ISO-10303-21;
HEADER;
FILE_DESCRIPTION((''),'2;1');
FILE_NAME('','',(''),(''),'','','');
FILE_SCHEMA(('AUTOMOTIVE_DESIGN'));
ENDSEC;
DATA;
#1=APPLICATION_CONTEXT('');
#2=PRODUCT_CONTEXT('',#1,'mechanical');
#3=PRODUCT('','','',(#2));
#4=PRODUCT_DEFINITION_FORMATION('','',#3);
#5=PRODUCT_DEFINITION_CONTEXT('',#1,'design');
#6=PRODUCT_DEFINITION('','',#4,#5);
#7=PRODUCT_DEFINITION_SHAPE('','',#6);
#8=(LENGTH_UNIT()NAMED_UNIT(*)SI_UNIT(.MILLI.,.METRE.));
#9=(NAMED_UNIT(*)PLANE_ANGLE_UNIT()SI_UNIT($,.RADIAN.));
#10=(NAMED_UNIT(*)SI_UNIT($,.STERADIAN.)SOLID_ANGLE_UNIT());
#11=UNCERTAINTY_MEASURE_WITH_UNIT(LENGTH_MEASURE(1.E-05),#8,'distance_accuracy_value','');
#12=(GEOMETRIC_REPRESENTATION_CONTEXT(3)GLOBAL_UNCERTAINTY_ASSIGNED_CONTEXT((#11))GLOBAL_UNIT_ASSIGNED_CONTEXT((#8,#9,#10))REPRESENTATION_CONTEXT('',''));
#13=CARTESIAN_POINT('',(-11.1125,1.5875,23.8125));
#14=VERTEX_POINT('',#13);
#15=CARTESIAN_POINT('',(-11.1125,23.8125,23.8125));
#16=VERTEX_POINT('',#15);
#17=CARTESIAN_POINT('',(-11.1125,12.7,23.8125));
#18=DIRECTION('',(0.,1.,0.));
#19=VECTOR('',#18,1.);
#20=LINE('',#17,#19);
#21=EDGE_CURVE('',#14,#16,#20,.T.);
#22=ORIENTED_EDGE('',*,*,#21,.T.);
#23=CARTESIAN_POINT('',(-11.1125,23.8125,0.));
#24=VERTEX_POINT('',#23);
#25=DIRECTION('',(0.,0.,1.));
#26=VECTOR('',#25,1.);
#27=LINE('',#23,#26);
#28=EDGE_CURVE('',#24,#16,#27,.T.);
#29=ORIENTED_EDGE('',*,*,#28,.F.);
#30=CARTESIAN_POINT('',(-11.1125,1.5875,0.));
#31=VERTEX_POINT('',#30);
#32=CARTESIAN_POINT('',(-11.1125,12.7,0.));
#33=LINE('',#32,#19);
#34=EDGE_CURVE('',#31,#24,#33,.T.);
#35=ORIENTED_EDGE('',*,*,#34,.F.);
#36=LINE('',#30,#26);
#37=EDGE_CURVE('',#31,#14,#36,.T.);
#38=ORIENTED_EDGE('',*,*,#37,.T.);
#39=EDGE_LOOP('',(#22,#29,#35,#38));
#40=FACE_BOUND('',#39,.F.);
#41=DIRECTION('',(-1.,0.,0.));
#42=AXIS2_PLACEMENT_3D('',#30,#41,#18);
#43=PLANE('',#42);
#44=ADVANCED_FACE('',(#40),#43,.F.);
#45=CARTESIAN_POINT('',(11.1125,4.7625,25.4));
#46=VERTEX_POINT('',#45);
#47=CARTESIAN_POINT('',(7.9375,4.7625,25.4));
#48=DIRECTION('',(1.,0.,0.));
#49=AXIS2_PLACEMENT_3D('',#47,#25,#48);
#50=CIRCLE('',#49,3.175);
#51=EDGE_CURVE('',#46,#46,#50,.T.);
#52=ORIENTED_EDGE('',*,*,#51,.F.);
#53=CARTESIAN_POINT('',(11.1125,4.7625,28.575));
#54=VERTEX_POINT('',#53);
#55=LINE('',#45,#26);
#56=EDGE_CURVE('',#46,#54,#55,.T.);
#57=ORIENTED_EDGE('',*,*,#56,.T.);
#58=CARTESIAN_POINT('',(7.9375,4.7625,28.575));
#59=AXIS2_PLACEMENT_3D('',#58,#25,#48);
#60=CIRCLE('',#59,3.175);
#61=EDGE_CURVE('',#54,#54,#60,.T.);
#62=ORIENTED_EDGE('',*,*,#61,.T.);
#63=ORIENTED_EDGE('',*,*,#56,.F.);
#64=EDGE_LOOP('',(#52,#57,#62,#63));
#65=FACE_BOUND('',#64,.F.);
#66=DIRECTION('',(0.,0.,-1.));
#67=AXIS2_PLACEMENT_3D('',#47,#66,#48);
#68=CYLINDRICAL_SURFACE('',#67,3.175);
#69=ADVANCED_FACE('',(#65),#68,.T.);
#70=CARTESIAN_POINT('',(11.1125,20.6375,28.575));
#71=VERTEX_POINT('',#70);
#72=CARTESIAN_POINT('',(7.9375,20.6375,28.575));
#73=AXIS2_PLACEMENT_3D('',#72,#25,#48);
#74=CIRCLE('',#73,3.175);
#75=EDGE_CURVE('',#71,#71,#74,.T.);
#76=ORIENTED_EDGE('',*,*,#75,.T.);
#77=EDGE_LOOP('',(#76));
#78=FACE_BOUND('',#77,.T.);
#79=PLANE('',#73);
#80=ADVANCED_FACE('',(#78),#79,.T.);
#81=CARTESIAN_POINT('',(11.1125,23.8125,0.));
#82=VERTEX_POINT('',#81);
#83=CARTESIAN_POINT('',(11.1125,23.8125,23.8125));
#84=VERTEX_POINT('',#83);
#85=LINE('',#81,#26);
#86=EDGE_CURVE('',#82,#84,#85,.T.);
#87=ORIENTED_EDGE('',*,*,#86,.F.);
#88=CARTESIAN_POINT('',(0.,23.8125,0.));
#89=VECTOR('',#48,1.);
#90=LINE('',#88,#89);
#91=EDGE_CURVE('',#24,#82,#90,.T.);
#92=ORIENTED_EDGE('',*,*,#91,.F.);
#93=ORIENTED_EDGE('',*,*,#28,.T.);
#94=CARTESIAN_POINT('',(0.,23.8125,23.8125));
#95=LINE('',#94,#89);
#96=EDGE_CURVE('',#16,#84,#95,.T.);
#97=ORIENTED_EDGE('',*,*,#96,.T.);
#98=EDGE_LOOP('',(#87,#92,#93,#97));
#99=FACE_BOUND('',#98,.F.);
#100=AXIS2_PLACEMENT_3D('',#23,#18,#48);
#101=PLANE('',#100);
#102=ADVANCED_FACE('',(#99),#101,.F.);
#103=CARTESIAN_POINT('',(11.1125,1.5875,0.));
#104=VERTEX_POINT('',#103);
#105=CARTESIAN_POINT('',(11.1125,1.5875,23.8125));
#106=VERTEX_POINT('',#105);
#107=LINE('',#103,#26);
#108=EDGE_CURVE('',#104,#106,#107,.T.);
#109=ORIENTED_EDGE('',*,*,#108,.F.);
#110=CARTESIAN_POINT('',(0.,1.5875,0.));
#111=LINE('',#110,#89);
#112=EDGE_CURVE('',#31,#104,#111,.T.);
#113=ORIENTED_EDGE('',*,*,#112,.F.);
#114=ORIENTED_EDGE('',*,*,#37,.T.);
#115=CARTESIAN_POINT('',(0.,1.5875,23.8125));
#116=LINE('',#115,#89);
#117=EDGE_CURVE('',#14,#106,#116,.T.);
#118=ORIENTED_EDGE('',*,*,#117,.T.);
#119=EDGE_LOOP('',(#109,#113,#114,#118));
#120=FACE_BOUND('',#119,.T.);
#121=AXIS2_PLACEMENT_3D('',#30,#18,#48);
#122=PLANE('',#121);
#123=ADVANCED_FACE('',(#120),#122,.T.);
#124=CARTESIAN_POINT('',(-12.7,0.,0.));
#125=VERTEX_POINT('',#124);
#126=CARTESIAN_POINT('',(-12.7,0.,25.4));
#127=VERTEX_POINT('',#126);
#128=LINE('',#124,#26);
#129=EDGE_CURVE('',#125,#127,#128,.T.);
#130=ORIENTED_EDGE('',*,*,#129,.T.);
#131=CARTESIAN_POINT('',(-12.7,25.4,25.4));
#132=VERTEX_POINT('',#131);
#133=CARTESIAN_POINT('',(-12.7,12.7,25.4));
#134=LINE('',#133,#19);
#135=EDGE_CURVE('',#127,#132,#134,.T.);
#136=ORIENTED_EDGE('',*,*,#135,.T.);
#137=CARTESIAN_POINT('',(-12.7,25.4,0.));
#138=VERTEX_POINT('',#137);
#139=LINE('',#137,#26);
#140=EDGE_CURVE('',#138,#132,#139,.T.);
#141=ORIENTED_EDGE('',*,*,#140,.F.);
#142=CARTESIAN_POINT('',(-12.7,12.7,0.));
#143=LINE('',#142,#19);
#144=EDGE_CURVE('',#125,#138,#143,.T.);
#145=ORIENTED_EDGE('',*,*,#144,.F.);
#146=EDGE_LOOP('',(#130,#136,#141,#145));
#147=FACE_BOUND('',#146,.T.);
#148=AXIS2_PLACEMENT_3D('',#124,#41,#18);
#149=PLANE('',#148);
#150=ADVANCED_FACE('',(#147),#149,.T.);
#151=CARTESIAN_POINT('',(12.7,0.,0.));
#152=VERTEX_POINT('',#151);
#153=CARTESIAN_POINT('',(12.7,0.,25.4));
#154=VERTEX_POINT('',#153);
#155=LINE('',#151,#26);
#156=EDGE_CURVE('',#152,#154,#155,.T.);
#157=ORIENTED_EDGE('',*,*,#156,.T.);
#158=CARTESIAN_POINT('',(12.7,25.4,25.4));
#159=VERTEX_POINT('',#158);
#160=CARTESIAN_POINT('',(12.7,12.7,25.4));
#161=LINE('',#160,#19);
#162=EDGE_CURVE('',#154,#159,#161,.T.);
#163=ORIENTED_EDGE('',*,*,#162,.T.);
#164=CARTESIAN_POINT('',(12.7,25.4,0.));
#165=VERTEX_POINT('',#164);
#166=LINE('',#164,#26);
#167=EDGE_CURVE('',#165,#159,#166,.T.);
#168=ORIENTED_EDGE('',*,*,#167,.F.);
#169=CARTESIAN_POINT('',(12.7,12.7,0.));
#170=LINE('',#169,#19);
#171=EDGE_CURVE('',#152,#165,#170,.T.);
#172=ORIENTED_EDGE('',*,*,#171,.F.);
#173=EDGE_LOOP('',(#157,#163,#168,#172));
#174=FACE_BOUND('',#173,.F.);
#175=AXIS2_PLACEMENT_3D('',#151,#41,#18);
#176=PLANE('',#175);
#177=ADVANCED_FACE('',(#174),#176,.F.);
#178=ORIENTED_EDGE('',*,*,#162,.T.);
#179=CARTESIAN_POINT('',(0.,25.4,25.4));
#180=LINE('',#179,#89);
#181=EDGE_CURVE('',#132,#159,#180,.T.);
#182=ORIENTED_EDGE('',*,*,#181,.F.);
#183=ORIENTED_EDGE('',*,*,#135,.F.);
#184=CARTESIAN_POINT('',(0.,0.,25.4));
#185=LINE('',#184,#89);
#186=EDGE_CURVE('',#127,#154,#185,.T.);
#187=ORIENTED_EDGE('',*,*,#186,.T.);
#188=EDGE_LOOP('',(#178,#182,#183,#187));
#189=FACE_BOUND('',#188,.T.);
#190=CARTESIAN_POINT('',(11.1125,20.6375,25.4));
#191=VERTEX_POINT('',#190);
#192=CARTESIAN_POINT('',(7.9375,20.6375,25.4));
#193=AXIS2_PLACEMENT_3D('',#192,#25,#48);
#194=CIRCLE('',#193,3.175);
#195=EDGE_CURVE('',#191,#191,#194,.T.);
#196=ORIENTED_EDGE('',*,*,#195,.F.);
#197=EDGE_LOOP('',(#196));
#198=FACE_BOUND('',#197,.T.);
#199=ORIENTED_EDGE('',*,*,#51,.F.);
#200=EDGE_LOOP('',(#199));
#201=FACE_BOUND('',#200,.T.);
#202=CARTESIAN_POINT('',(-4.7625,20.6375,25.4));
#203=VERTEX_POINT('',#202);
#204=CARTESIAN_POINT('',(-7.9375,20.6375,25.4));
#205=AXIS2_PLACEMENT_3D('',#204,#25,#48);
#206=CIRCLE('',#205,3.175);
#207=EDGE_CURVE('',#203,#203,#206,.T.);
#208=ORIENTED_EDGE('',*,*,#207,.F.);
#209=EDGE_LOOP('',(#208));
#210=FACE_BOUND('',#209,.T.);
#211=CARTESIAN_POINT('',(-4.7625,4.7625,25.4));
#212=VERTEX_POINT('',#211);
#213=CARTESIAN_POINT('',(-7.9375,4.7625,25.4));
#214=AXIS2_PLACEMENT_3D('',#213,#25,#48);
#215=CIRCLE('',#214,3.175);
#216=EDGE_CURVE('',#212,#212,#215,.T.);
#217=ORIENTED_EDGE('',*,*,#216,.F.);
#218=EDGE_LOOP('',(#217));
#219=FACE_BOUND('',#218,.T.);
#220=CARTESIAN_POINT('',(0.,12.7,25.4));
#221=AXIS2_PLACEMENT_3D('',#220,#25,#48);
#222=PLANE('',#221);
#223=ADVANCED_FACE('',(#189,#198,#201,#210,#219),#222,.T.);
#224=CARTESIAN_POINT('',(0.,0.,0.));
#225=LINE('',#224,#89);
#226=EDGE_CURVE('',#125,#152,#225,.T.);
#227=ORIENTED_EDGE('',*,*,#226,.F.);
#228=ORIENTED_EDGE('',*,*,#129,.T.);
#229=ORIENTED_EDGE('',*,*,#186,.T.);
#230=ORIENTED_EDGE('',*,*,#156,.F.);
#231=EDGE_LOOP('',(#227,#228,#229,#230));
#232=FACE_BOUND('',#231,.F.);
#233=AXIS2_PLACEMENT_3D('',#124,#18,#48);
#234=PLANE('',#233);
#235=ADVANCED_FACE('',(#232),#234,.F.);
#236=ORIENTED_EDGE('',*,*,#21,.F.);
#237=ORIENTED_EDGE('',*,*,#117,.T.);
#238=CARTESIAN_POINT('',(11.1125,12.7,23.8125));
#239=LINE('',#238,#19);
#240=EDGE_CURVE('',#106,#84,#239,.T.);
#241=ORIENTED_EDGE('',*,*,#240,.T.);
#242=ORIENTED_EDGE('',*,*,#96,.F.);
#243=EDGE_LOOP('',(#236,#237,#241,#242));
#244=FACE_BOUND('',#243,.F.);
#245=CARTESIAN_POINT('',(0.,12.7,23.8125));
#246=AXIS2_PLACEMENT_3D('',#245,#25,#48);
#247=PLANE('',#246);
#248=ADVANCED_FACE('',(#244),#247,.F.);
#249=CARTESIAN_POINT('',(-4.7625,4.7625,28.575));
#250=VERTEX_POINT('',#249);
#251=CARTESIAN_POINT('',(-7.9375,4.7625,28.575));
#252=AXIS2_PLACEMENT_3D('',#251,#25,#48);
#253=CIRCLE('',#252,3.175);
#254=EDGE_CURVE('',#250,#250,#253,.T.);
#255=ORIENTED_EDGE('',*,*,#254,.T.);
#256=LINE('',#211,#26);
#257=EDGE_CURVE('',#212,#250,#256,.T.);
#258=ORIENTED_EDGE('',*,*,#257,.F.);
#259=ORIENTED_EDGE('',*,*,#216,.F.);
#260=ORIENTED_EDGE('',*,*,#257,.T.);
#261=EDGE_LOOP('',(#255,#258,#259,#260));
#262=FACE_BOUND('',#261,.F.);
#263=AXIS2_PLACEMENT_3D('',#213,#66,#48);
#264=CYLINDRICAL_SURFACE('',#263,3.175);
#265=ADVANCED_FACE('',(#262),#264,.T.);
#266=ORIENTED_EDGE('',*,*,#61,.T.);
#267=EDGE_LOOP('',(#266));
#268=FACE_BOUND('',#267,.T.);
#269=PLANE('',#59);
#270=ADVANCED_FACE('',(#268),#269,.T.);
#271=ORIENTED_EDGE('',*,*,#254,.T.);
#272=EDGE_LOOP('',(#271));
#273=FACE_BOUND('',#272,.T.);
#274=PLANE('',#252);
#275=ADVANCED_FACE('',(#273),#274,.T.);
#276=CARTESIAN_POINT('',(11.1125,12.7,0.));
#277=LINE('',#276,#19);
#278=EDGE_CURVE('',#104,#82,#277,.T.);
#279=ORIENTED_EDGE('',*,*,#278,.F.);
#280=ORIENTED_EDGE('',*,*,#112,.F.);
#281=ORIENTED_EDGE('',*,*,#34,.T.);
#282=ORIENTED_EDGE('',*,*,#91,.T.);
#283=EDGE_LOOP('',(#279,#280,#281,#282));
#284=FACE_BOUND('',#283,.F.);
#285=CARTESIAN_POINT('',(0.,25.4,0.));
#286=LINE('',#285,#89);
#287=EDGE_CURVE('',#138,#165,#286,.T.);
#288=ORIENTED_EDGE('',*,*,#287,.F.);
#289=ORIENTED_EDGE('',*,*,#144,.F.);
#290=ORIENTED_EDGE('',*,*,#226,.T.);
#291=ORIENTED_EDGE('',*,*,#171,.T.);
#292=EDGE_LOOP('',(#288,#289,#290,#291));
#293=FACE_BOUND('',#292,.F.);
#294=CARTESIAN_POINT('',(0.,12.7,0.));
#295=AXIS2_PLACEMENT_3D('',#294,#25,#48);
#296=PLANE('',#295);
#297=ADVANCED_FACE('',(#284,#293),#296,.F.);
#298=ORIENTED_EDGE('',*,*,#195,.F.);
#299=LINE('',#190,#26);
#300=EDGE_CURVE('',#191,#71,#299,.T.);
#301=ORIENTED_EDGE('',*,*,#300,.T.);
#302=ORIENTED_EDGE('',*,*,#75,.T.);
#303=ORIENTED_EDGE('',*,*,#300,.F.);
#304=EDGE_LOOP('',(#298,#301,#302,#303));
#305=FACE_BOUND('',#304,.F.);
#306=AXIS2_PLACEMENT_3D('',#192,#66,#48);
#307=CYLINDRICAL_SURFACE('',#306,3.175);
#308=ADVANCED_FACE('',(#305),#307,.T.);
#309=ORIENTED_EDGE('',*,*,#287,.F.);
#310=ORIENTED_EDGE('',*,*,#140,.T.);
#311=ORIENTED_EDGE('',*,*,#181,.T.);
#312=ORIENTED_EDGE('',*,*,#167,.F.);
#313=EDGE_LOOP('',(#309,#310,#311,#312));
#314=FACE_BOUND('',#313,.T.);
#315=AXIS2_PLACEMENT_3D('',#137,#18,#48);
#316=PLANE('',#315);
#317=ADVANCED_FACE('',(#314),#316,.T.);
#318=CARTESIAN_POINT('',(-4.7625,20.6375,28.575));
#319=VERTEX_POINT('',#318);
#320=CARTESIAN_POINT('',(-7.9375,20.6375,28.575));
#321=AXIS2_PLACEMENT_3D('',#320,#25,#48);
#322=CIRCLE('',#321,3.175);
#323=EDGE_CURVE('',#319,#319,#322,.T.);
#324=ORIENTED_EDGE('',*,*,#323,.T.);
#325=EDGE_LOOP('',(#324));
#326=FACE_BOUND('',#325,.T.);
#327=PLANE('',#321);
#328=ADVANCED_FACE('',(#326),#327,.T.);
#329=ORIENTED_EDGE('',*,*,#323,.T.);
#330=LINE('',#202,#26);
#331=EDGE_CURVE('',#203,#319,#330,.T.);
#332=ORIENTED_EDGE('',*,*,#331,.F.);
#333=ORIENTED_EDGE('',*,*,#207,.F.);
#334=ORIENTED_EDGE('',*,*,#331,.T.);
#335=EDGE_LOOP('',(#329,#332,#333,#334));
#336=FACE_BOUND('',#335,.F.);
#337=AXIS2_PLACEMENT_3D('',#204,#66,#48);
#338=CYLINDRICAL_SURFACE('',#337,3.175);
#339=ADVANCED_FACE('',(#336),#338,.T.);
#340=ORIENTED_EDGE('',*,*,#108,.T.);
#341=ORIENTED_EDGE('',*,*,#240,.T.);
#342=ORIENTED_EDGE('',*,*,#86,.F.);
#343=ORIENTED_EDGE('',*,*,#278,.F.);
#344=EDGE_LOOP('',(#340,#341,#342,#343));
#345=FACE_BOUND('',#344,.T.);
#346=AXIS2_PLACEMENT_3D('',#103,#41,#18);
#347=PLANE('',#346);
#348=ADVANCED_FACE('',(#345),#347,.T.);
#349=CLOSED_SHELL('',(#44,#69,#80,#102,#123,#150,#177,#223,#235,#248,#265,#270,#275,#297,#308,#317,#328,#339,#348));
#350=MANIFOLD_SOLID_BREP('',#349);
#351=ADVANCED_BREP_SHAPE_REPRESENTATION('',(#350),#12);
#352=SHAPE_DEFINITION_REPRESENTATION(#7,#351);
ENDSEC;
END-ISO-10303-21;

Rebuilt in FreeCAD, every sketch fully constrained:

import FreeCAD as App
import Part
import Sketcher

V = App.Vector
Q = App.Units.Quantity


def add_polygon(sketch, points):
    """Adds a closed chain of lines whose ends are joined by coincident constraints."""
    first, n = sketch.GeometryCount, len(points)
    for a, b in zip(points, points[1:] + points[:1]):
        sketch.addGeometry(Part.LineSegment(App.Vector(*a, 0), App.Vector(*b, 0)), False)
    for i in range(n):
        sketch.addConstraint(Sketcher.Constraint("Coincident", first + i, 2, first + (i + 1) % n, 1))

doc = App.newDocument("Part")
body = doc.addObject("PartDesign::Body", "Body")

# Sketch on XY plane
sketch1 = body.newObject("Sketcher::SketchObject", "Sketch")
sketch1.AttachmentSupport = (doc.getObject("XY_Plane"), [""])
sketch1.MapMode = "FlatFace"
add_polygon(sketch1, [(-13, 25), (-13, 0), (13, 0), (13, 25)])  # lines 0-3
sketch1.addConstraint([
    Sketcher.Constraint("Vertical", 0),
    Sketcher.Constraint("Horizontal", 1),
    Sketcher.Constraint("Vertical", 2),
    Sketcher.Constraint("Horizontal", 3),
    Sketcher.Constraint("Symmetric", 0, 2, 1, 2, -1, 1),
    Sketcher.Constraint("Equal", 3, 0),
    Sketcher.Constraint("DistanceX", 1, 1, 1, 2, Q("1 in")),
])
pad1 = body.newObject("PartDesign::Pad", "Pad")
pad1.Profile = sketch1
pad1.Length = Q("1 in")

# Sketch on XY plane
sketch2 = body.newObject("Sketcher::SketchObject", "Sketch001")
sketch2.AttachmentSupport = (doc.getObject("XY_Plane"), [""])
sketch2.MapMode = "FlatFace"
add_polygon(sketch2, [(-11, 24), (-11, 2), (11, 2), (11, 24)])  # lines 0-3
sketch2.addConstraint([
    Sketcher.Constraint("Vertical", 0),
    Sketcher.Constraint("Horizontal", 1),
    Sketcher.Constraint("Vertical", 2),
    Sketcher.Constraint("Horizontal", 3),
    Sketcher.Constraint("Equal", 3, 0),
    Sketcher.Constraint("DistanceX", 1, 1, 1, 2, Q("0.875 in")),
    Sketcher.Constraint("DistanceX", 0, 2, -1, 1, Q("0.4375 in")),
    Sketcher.Constraint("DistanceY", -1, 1, 0, 2, Q("0.0625 in")),
])
pocket1 = body.newObject("PartDesign::Pocket", "Pocket")
pocket1.Profile = sketch2
pocket1.Length = Q("0.9375 in")
pocket1.Reversed = True

# Sketch on XY plane
sketch3 = body.newObject("Sketcher::SketchObject", "Sketch002")
sketch3.AttachmentSupport = (doc.getObject("XY_Plane"), [""])
sketch3.MapMode = "FlatFace"
sketch3.AttachmentOffset = App.Placement(V(0, 0, 1 * 25.4), App.Rotation())
sketch3.addGeometry([
    Part.Circle(V(7.9, 4.8, 0), V(0, 0, 1), 3.2),
    Part.Circle(V(7.9, 20.6, 0), V(0, 0, 1), 3.2),
    Part.Circle(V(-7.9, 20.6, 0), V(0, 0, 1), 3.2),
    Part.Circle(V(-7.9, 4.8, 0), V(0, 0, 1), 3.2),
], False)
sketch3.addConstraint([
    Sketcher.Constraint("Equal", 0, 1),
    Sketcher.Constraint("Equal", 1, 2),
    Sketcher.Constraint("Equal", 2, 3),
    Sketcher.Constraint("Symmetric", 1, 3, 2, 3, -2),
    Sketcher.Constraint("Symmetric", 0, 3, 3, 3, -2),
    Sketcher.Constraint("Vertical", 0, 3, 1, 3),
    Sketcher.Constraint("Diameter", 0, Q("0.25 in")),
    Sketcher.Constraint("DistanceX", -1, 1, 0, 3, Q("0.3125 in")),
    Sketcher.Constraint("DistanceY", -1, 1, 0, 3, Q("0.1875 in")),
    Sketcher.Constraint("DistanceY", -1, 1, 1, 3, Q("0.8125 in")),
])
pad2 = body.newObject("PartDesign::Pad", "Pad001")
pad2.Profile = sketch3
pad2.Length = Q("0.125 in")

doc.recompute()
